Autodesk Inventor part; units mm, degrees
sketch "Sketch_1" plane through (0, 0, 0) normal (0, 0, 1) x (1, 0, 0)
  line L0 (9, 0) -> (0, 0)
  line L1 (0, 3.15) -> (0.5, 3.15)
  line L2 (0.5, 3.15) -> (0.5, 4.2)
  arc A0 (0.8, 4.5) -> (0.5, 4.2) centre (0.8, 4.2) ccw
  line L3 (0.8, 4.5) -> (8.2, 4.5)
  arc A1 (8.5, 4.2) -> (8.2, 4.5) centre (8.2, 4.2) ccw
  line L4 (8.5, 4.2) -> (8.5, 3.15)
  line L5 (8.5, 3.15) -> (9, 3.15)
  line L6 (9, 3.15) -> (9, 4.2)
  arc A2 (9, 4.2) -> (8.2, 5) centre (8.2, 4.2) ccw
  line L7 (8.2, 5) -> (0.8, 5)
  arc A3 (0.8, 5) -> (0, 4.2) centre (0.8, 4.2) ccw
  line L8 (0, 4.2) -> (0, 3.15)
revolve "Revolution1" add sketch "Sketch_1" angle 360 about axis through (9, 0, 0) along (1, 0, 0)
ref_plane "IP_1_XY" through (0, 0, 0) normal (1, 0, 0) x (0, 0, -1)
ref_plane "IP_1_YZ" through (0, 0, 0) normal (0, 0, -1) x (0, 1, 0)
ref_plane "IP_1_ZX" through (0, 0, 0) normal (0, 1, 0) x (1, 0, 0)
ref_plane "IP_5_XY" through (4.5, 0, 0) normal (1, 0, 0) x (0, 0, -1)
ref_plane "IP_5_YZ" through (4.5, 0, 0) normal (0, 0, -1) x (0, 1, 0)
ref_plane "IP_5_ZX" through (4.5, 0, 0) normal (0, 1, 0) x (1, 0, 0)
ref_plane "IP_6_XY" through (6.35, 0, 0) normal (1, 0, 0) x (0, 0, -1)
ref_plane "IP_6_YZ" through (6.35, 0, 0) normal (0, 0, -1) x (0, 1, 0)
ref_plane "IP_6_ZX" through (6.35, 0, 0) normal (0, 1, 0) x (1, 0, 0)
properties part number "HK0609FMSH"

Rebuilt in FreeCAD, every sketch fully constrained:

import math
import FreeCAD as App
import Part
import Sketcher
Q = App.Units.Quantity

doc = App.newDocument("Part")
params = doc.addObject("Spreadsheet::Sheet", "Params")
for row, (alias, value) in enumerate([
    ("sketch1_radius", "0.3 mm"),
    ("sketch1_radius2", "0.8 mm"),
    ("sketch1_width", "7.4 mm"),
    ("sketch1_height", "1.05 mm"),
    ("revolution_angle", "360 deg"),
], start=1):
    params.set(f"A{row}", alias)
    params.set(f"B{row}", "=" + value)
    params.setAlias(f"B{row}", alias)

body = doc.addObject("PartDesign::Body", "Body")

# Sketch on XY plane
sketch1 = body.newObject("Sketcher::SketchObject", "Sketch")
sketch1.AttachmentSupport = (doc.getObject("XY_Plane"), [""])
sketch1.MapMode = "FlatFace"
sketch1.addGeometry([
    Part.LineSegment(App.Vector(0, 4.2, 0), App.Vector(0, 3.15, 0)),  # 0
    Part.LineSegment(App.Vector(0, 3.15, 0), App.Vector(0.5, 3.15, 0)),  # 1
    Part.LineSegment(App.Vector(0.5, 3.15, 0), App.Vector(0.5, 4.2, 0)),  # 2
    Part.ArcOfCircle(Part.Circle(App.Vector(0.8, 4.2, 0), App.Vector(0, 0, 1), 0.3), math.radians(90), math.radians(180)),  # 3
    Part.LineSegment(App.Vector(0.8, 4.5, 0), App.Vector(8.2, 4.5, 0)),  # 4
    Part.ArcOfCircle(Part.Circle(App.Vector(8.2, 4.2, 0), App.Vector(0, 0, 1), 0.3), math.radians(0), math.radians(90)),  # 5
    Part.LineSegment(App.Vector(8.5, 4.2, 0), App.Vector(8.5, 3.15, 0)),  # 6
    Part.LineSegment(App.Vector(8.5, 3.15, 0), App.Vector(9, 3.15, 0)),  # 7
    Part.LineSegment(App.Vector(9, 3.15, 0), App.Vector(9, 4.2, 0)),  # 8
    Part.ArcOfCircle(Part.Circle(App.Vector(8.2, 4.2, 0), App.Vector(0, 0, 1), 0.8), math.radians(0), math.radians(90)),  # 9
    Part.LineSegment(App.Vector(8.2, 5, 0), App.Vector(0.8, 5, 0)),  # 10
    Part.ArcOfCircle(Part.Circle(App.Vector(0.8, 4.2, 0), App.Vector(0, 0, 1), 0.8), math.radians(90), math.radians(180)),  # 11
], False)
sketch1.addConstraint([
    Sketcher.Constraint("Coincident", 0, 2, 1, 1),
    Sketcher.Constraint("Coincident", 1, 2, 2, 1),
    Sketcher.Constraint("Tangent", 2, 2, 3, 2),
    Sketcher.Constraint("Tangent", 3, 1, 4, 1),
    Sketcher.Constraint("Tangent", 4, 2, 5, 2),
    Sketcher.Constraint("Tangent", 5, 1, 6, 1),
    Sketcher.Constraint("Coincident", 6, 2, 7, 1),
    Sketcher.Constraint("Coincident", 7, 2, 8, 1),
    Sketcher.Constraint("Tangent", 8, 2, 9, 1),
    Sketcher.Constraint("Tangent", 9, 2, 10, 1),
    Sketcher.Constraint("Tangent", 10, 2, 11, 1),
    Sketcher.Constraint("Tangent", 11, 2, 0, 1),
    Sketcher.Constraint("Vertical", 0),
    Sketcher.Constraint("Horizontal", 1),
    Sketcher.Constraint("Vertical", 2),
    Sketcher.Constraint("Horizontal", 4),
    Sketcher.Constraint("Vertical", 6),
    Sketcher.Constraint("Horizontal", 7),
    Sketcher.Constraint("Vertical", 8),
    Sketcher.Constraint("Horizontal", 10),
    Sketcher.Constraint("Coincident", 9, 3, 5, 3),
    Sketcher.Constraint("Coincident", 11, 3, 3, 3),
    Sketcher.Constraint("Equal", 3, 5),
    Sketcher.Constraint("PointOnObject", 0, 2, -2),
    Sketcher.Constraint("Horizontal", 1, 2, 6, 2),
    Sketcher.Constraint("Radius", 3, Q("0.3 mm")),
    Sketcher.Constraint("Radius", 9, Q("0.8 mm")),
    Sketcher.Constraint("DistanceX", 4, 1, 4, 2, Q("7.4 mm")),
    Sketcher.Constraint("DistanceY", -1, 1, 9, 2, Q("5 mm")),
    Sketcher.Constraint("DistanceY", 0, 2, 0, 1, Q("1.05 mm")),
])
sketch1.setExpression("Constraints[25]", "Params.sketch1_radius")
sketch1.setExpression("Constraints[26]", "Params.sketch1_radius2")
sketch1.setExpression("Constraints[27]", "Params.sketch1_width")
sketch1.setExpression("Constraints[29]", "Params.sketch1_height")
revolution = body.newObject("PartDesign::Revolution", "Revolution")
revolution.Profile = sketch1
revolution.ReferenceAxis = (sketch1, ["H_Axis"])
revolution.setExpression("Angle", "Params.revolution_angle")

doc.recompute()
